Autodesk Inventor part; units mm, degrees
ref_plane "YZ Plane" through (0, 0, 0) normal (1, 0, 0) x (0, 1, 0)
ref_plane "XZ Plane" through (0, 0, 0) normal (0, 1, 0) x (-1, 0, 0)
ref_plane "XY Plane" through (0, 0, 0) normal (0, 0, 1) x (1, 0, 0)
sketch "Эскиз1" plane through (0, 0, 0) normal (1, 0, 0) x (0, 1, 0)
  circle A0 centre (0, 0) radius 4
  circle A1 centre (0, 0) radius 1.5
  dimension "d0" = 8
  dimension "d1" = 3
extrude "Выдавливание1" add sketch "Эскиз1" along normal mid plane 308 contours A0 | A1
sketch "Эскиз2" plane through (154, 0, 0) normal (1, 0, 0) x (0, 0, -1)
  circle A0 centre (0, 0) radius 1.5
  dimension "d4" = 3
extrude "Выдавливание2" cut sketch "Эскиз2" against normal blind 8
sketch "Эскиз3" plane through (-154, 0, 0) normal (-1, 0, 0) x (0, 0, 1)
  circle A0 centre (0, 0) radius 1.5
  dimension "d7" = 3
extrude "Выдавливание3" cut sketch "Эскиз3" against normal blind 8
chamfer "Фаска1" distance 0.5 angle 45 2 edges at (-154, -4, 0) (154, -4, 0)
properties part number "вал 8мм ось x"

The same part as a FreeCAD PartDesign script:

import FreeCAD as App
import Part
import Sketcher
from FreeCAD import Vector


def edges_at(feature, points):
    """Names of the edges that pass closest to the given points."""
    edges = feature.Shape.Edges
    near = lambda p: min(range(len(edges)), key=lambda i: edges[i].distToShape(Part.Vertex(*p))[0])
    return sorted({f"Edge{near(p) + 1}" for p in points})

doc = App.newDocument("Part")
body = doc.addObject("PartDesign::Body", "Body")

# Sketch on YZ plane
sketch1 = body.newObject("Sketcher::SketchObject", "Sketch")
sketch1.AttachmentSupport = (doc.getObject("YZ_Plane"), [""])
sketch1.MapMode = "FlatFace"
sketch1.addGeometry(Part.Circle(Vector(0, 0, 0), Vector(0, 0, 1), 4), False)
sketch1.addConstraint([
    Sketcher.Constraint("Coincident", 0, 3, -1, 1),
    Sketcher.Constraint("Diameter", 0, 8.0),
])
pad1 = body.newObject("PartDesign::Pad", "Pad")
pad1.Profile = sketch1
pad1.Length = 308
pad1.Midplane = True

# Sketch on YZ plane
sketch2 = body.newObject("Sketcher::SketchObject", "Sketch001")
sketch2.AttachmentSupport = (doc.getObject("YZ_Plane"), [""])
sketch2.MapMode = "FlatFace"
sketch2.AttachmentOffset = App.Placement(Vector(0, 0, 154), App.Rotation())
sketch2.addGeometry(Part.Circle(Vector(0, 0, 0), Vector(0, 0, 1), 1.5), False)
sketch2.addConstraint([
    Sketcher.Constraint("Coincident", 0, 3, -1, 1),
    Sketcher.Constraint("Diameter", 0, 3.0),
])
pocket1 = body.newObject("PartDesign::Pocket", "Pocket")
pocket1.Profile = sketch2
pocket1.Length = 8

# Sketch on YZ plane
sketch3 = body.newObject("Sketcher::SketchObject", "Sketch002")
sketch3.AttachmentSupport = (doc.getObject("YZ_Plane"), [""])
sketch3.MapMode = "FlatFace"
sketch3.AttachmentOffset = App.Placement(Vector(0, 0, -154), App.Rotation())
sketch3.addGeometry(Part.Circle(Vector(0, 0, 0), Vector(0, 0, 1), 1.5), False)
sketch3.addConstraint([
    Sketcher.Constraint("Coincident", 0, 3, -1, 1),
    Sketcher.Constraint("Diameter", 0, 3.0),
])
pocket2 = body.newObject("PartDesign::Pocket", "Pocket001")
pocket2.Profile = sketch3
pocket2.Length = 8
pocket2.Reversed = True
doc.recompute()

chamfer = body.newObject("PartDesign::Chamfer", "Chamfer")
chamfer.Base = (pocket2, edges_at(pocket2, [(-154, -4, 0), (154, -4, 0)]))
chamfer.Size = 0.5

doc.recompute()
